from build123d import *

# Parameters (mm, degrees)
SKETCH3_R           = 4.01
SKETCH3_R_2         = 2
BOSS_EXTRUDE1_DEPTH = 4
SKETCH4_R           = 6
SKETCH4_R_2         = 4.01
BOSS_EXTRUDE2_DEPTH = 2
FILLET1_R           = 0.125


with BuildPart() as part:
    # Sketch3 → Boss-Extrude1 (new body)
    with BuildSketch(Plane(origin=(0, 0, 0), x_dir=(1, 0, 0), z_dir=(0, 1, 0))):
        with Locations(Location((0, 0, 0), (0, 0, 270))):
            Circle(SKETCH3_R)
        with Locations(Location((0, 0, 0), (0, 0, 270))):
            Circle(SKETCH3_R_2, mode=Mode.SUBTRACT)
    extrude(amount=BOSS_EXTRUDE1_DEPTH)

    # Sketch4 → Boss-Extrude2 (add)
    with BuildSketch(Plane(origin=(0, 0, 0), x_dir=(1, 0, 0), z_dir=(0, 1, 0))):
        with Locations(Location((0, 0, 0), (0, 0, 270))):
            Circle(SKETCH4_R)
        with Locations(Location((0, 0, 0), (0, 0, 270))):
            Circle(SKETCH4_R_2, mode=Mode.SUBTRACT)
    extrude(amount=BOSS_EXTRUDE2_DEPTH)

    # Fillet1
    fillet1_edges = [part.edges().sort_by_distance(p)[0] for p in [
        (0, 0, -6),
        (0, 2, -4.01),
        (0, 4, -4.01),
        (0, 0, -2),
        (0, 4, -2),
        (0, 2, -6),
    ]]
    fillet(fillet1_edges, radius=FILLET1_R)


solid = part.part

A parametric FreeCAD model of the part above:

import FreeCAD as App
import Part
import Sketcher
from FreeCAD import Vector


def edges_at(feature, points):
    """Names of the edges that pass closest to the given points."""
    edges = feature.Shape.Edges
    near = lambda p: min(range(len(edges)), key=lambda i: edges[i].distToShape(Part.Vertex(*p))[0])
    return sorted({f"Edge{near(p) + 1}" for p in points})

doc = App.newDocument("Part")
body = doc.addObject("PartDesign::Body", "Body")

sketch1 = body.newObject("Sketcher::SketchObject", "Sketch")
sketch1.AttachmentSupport = (doc.getObject("XZ_Plane"), [""])
sketch1.MapMode = "FlatFace"
sketch1.addGeometry(Part.Circle(Vector(0, 0, 0), Vector(0, 0, 1), 4), False)
sketch1.addGeometry(Part.Circle(Vector(0, 0, 0), Vector(0, 0, 1), 2), False)
sketch1.addConstraint(Sketcher.Constraint("Coincident", 0, 3, -1, 1))
sketch1.addConstraint(Sketcher.Constraint("Coincident", 1, 3, -1, 1))
sketch1.addConstraint(Sketcher.Constraint("Diameter", 1, 4.0))
sketch1.addConstraint(Sketcher.Constraint("Diameter", 0, 8.02))
pad1 = body.newObject("PartDesign::Pad", "Pad")
pad1.Profile = sketch1
pad1.Length = 4
pad1.Reversed = True

sketch2 = body.newObject("Sketcher::SketchObject", "Sketch001")
sketch2.AttachmentSupport = (doc.getObject("XZ_Plane"), [""])
sketch2.MapMode = "FlatFace"
sketch2.addGeometry(Part.Circle(Vector(0, 0, 0), Vector(0, 0, 1), 6), False)
sketch2.addGeometry(Part.Circle(Vector(0, 0, 0), Vector(0, 0, 1), 4), False)
sketch2.addConstraint(Sketcher.Constraint("Coincident", 0, 3, -1, 1))
sketch2.addConstraint(Sketcher.Constraint("Coincident", 1, 3, -1, 1))
sketch2.addConstraint(Sketcher.Constraint("Diameter", 0, 12.0))
sketch2.addConstraint(Sketcher.Constraint("Diameter", 1, 8.02))
pad2 = body.newObject("PartDesign::Pad", "Pad001")
pad2.Profile = sketch2
pad2.Length = 2
pad2.Reversed = True
doc.recompute()

fillet = body.newObject("PartDesign::Fillet", "Fillet")
fillet.Base = (pad2, edges_at(pad2, [
    (0, 0, -6),
    (0, 2, -4.01),
    (0, 4, -4.01),
    (0, 0, -2),
    (0, 4, -2),
    (0, 2, -6),
]))
fillet.Radius = 0.125

doc.recompute()
